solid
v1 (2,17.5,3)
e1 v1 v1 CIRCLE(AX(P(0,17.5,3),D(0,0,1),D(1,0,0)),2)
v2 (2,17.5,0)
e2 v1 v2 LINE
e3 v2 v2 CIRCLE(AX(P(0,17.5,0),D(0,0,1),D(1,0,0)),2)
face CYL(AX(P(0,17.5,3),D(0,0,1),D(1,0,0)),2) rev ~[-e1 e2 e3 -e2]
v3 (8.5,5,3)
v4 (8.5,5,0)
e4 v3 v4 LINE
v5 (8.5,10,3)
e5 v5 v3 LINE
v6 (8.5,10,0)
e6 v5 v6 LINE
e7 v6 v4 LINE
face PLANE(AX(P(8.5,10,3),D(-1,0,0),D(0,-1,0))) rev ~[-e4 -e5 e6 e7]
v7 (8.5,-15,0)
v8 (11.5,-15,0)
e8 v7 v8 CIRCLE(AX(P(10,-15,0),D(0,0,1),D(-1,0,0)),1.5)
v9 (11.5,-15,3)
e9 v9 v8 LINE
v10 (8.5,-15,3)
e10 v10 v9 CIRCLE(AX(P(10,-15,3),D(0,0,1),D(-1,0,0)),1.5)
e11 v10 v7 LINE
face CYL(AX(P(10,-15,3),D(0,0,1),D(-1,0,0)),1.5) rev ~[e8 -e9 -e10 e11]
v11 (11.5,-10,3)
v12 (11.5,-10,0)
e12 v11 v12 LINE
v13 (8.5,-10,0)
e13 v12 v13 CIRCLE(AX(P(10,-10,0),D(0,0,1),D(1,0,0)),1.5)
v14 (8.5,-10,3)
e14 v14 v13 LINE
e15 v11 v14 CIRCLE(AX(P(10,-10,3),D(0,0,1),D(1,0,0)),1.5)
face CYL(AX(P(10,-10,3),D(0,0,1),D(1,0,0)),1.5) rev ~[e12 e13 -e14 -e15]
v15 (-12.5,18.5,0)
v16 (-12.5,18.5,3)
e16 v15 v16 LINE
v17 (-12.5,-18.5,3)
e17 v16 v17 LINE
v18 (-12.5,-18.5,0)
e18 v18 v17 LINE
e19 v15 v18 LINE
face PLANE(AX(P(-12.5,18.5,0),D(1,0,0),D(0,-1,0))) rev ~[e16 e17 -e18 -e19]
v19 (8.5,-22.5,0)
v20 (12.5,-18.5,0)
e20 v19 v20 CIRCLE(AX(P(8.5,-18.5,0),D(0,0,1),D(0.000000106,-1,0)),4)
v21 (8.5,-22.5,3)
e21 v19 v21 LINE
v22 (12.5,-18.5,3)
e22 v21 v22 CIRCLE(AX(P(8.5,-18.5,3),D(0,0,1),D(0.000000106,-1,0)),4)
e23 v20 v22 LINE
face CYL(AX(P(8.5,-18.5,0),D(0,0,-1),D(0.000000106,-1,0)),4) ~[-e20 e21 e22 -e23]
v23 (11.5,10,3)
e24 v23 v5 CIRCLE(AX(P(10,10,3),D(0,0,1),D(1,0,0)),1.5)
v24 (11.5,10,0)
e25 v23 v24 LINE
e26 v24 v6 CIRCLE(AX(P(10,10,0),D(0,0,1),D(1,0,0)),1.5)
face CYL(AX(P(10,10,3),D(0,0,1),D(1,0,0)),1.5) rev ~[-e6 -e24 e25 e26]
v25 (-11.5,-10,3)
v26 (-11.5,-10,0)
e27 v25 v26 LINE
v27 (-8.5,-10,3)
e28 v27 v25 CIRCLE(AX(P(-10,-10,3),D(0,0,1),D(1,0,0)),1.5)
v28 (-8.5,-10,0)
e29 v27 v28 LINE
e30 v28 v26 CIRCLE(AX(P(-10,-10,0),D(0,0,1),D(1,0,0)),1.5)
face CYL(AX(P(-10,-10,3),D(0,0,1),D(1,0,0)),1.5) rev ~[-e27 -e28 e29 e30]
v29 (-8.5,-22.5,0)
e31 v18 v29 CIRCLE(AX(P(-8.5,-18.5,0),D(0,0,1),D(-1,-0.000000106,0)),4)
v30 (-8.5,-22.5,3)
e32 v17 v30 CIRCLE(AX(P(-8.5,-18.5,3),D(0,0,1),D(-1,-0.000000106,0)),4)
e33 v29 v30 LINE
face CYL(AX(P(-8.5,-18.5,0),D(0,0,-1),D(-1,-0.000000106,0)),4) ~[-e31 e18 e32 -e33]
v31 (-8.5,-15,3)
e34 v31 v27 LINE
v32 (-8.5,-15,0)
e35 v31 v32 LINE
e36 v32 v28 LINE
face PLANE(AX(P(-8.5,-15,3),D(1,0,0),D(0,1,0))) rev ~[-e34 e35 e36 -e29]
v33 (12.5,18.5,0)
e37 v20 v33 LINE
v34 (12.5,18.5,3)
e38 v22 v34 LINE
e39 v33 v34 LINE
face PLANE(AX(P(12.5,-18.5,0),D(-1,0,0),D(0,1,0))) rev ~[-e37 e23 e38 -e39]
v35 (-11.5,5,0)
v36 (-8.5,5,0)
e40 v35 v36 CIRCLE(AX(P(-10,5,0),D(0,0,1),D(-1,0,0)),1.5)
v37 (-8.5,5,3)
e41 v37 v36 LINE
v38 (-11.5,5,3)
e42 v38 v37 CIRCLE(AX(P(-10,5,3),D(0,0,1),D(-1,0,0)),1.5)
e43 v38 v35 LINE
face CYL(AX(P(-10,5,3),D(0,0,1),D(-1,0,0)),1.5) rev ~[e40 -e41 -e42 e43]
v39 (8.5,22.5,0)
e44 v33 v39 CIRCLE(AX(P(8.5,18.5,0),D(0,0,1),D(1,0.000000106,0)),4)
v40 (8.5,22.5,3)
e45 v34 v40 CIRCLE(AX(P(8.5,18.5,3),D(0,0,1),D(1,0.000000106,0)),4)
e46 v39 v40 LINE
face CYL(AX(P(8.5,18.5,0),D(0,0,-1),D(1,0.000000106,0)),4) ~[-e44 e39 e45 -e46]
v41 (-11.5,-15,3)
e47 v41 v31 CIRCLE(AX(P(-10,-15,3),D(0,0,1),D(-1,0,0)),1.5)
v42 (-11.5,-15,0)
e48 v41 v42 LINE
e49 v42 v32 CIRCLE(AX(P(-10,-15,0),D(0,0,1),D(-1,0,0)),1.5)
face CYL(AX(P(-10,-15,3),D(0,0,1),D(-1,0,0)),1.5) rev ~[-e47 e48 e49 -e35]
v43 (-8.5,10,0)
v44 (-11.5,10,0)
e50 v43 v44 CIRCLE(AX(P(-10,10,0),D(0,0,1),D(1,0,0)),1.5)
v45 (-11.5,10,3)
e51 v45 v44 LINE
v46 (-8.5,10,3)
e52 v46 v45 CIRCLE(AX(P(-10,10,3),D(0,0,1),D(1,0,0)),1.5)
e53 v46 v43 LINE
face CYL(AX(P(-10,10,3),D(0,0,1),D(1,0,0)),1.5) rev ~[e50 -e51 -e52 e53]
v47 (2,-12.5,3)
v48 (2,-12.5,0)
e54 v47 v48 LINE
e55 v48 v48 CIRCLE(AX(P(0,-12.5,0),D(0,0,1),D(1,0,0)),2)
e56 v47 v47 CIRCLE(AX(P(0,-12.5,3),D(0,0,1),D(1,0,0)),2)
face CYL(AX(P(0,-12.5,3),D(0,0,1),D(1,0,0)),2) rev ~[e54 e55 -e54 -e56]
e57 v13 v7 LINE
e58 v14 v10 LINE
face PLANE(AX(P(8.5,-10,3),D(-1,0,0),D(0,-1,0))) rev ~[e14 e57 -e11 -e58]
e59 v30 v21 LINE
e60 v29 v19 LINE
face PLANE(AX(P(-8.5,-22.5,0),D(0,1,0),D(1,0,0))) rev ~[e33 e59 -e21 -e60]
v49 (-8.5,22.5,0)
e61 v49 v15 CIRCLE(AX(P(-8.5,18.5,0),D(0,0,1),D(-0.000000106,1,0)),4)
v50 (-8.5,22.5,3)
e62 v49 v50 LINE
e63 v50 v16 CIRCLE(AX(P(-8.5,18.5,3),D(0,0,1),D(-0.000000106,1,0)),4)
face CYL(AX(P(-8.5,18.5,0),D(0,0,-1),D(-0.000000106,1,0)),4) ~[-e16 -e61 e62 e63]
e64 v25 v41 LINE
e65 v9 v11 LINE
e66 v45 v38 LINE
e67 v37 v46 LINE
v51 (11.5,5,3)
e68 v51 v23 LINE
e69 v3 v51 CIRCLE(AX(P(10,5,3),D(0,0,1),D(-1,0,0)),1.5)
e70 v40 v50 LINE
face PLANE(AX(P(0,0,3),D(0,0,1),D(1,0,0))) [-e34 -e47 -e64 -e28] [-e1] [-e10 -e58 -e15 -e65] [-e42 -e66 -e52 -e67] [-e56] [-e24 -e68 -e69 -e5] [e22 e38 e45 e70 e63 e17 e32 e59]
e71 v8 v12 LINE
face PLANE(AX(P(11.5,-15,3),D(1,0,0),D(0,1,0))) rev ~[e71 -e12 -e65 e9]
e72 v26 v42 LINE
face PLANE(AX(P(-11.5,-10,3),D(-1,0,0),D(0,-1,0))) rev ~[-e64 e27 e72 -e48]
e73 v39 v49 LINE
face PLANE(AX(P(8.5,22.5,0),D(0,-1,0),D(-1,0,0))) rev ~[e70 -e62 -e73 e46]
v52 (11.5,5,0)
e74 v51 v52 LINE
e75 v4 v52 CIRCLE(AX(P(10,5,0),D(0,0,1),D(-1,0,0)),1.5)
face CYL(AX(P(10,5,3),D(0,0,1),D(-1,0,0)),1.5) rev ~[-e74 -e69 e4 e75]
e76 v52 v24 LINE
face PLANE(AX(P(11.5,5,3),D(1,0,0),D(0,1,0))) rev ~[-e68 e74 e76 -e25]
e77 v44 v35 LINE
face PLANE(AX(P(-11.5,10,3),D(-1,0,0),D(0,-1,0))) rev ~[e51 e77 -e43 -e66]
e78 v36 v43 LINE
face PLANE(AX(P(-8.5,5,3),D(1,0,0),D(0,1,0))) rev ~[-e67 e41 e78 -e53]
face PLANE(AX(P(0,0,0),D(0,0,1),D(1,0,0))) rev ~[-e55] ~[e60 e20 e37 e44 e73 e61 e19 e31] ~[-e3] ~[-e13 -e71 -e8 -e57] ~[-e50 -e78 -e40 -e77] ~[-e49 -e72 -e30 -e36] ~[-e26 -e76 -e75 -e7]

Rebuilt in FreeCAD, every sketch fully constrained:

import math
import FreeCAD as App
import Part
import Sketcher
Q = App.Units.Quantity

doc = App.newDocument("Part")
body = doc.addObject("PartDesign::Body", "Body")

sketch1 = body.newObject("Sketcher::SketchObject", "Sketch")
sketch1.AttachmentSupport = (doc.getObject("XY_Plane"), [""])
sketch1.MapMode = "FlatFace"
sketch1.addGeometry([
    Part.LineSegment(App.Vector(-8.5, -22.5, 0), App.Vector(8.5, -22.5, 0)),
    Part.ArcOfCircle(Part.Circle(App.Vector(8.5, -18.5, 0), App.Vector(0, 0, 1), 4), math.radians(-90), math.radians(0)),
    Part.LineSegment(App.Vector(12.5, -18.5, 0), App.Vector(12.5, 18.5, 0)),
    Part.ArcOfCircle(Part.Circle(App.Vector(8.5, 18.5, 0), App.Vector(0, 0, 1), 4), math.radians(0), math.radians(90)),
    Part.LineSegment(App.Vector(8.5, 22.5, 0), App.Vector(-8.5, 22.5, 0)),
    Part.ArcOfCircle(Part.Circle(App.Vector(-8.5, 18.5, 0), App.Vector(0, 0, 1), 4), math.radians(90), math.radians(180)),
    Part.LineSegment(App.Vector(-12.5, 18.5, 0), App.Vector(-12.5, -18.5, 0)),
    Part.ArcOfCircle(Part.Circle(App.Vector(-8.5, -18.5, 0), App.Vector(0, 0, 1), 4), math.radians(-180), math.radians(-90)),
], False)
sketch1.addConstraint([
    Sketcher.Constraint("Tangent", 0, 2, 1, 1),
    Sketcher.Constraint("Tangent", 1, 2, 2, 1),
    Sketcher.Constraint("Tangent", 2, 2, 3, 1),
    Sketcher.Constraint("Tangent", 3, 2, 4, 1),
    Sketcher.Constraint("Tangent", 4, 2, 5, 1),
    Sketcher.Constraint("Tangent", 5, 2, 6, 1),
    Sketcher.Constraint("Tangent", 6, 2, 7, 1),
    Sketcher.Constraint("Tangent", 7, 2, 0, 1),
    Sketcher.Constraint("Horizontal", 0),
    Sketcher.Constraint("Vertical", 2),
    Sketcher.Constraint("Horizontal", 4),
    Sketcher.Constraint("Vertical", 6),
    Sketcher.Constraint("Equal", 1, 3),
    Sketcher.Constraint("Equal", 3, 5),
    Sketcher.Constraint("Equal", 5, 7),
    Sketcher.Constraint("Symmetric", 1, 3, 5, 3, -1, 1),
    Sketcher.Constraint("Radius", 1, Q("4 mm")),
    Sketcher.Constraint("DistanceX", 0, 1, 0, 2, Q("17 mm")),
    Sketcher.Constraint("DistanceY", 2, 1, 2, 2, Q("37 mm")),
])
pad1 = body.newObject("PartDesign::Pad", "Pad")
pad1.Profile = sketch1
pad1.Length = 3

sketch2 = body.newObject("Sketcher::SketchObject", "Sketch001")
sketch2.AttachmentSupport = (doc.getObject("XY_Plane"), [""])
sketch2.MapMode = "FlatFace"
sketch2.AttachmentOffset = App.Placement(App.Vector(0, 0, 3), App.Rotation())
sketch2.addGeometry([
    Part.Circle(App.Vector(0, -12.5, 0), App.Vector(0, 0, 1), 2),
    Part.Circle(App.Vector(0, 17.5, 0), App.Vector(0, 0, 1), 2),
    Part.ArcOfCircle(Part.Circle(App.Vector(-10, 10, 0), App.Vector(0, 0, 1), 1.5), math.radians(0), math.radians(180)),
    Part.LineSegment(App.Vector(-11.5, 10, 0), App.Vector(-11.5, 5, 0)),
    Part.ArcOfCircle(Part.Circle(App.Vector(-10, 5, 0), App.Vector(0, 0, 1), 1.5), math.radians(180), math.radians(360)),
    Part.LineSegment(App.Vector(-8.5, 5, 0), App.Vector(-8.5, 10, 0)),
    Part.ArcOfCircle(Part.Circle(App.Vector(10, 10, 0), App.Vector(0, 0, 1), 1.5), math.radians(0), math.radians(180)),
    Part.LineSegment(App.Vector(8.5, 10, 0), App.Vector(8.5, 5, 0)),
    Part.ArcOfCircle(Part.Circle(App.Vector(10, 5, 0), App.Vector(0, 0, 1), 1.5), math.radians(180), math.radians(360)),
    Part.LineSegment(App.Vector(11.5, 5, 0), App.Vector(11.5, 10, 0)),
    Part.ArcOfCircle(Part.Circle(App.Vector(10, -10, 0), App.Vector(0, 0, 1), 1.5), math.radians(0), math.radians(180)),
    Part.LineSegment(App.Vector(8.5, -10, 0), App.Vector(8.5, -15, 0)),
    Part.ArcOfCircle(Part.Circle(App.Vector(10, -15, 0), App.Vector(0, 0, 1), 1.5), math.radians(180), math.radians(360)),
    Part.LineSegment(App.Vector(11.5, -15, 0), App.Vector(11.5, -10, 0)),
    Part.ArcOfCircle(Part.Circle(App.Vector(-10, -10, 0), App.Vector(0, 0, 1), 1.5), math.radians(0), math.radians(180)),
    Part.LineSegment(App.Vector(-11.5, -10, 0), App.Vector(-11.5, -15, 0)),
    Part.ArcOfCircle(Part.Circle(App.Vector(-10, -15, 0), App.Vector(0, 0, 1), 1.5), math.radians(180), math.radians(360)),
    Part.LineSegment(App.Vector(-8.5, -15, 0), App.Vector(-8.5, -10, 0)),
], False)
sketch2.addConstraint([
    Sketcher.Constraint("Tangent", 2, 2, 3, 1),
    Sketcher.Constraint("Tangent", 3, 2, 4, 1),
    Sketcher.Constraint("Tangent", 4, 2, 5, 1),
    Sketcher.Constraint("Tangent", 5, 2, 2, 1),
    Sketcher.Constraint("Tangent", 6, 2, 7, 1),
    Sketcher.Constraint("Tangent", 7, 2, 8, 1),
    Sketcher.Constraint("Tangent", 8, 2, 9, 1),
    Sketcher.Constraint("Tangent", 9, 2, 6, 1),
    Sketcher.Constraint("Tangent", 10, 2, 11, 1),
    Sketcher.Constraint("Tangent", 11, 2, 12, 1),
    Sketcher.Constraint("Tangent", 12, 2, 13, 1),
    Sketcher.Constraint("Tangent", 13, 2, 10, 1),
    Sketcher.Constraint("Tangent", 14, 2, 15, 1),
    Sketcher.Constraint("Tangent", 15, 2, 16, 1),
    Sketcher.Constraint("Tangent", 16, 2, 17, 1),
    Sketcher.Constraint("Tangent", 17, 2, 14, 1),
    Sketcher.Constraint("Vertical", 3),
    Sketcher.Constraint("Vertical", 5),
    Sketcher.Constraint("Vertical", 7),
    Sketcher.Constraint("Vertical", 9),
    Sketcher.Constraint("Vertical", 11),
    Sketcher.Constraint("Vertical", 13),
    Sketcher.Constraint("Vertical", 15),
    Sketcher.Constraint("Vertical", 17),
    Sketcher.Constraint("Equal", 0, 1),
    Sketcher.Constraint("Equal", 4, 6),
    Sketcher.Constraint("Equal", 8, 10),
    Sketcher.Constraint("Equal", 12, 14),
    Sketcher.Constraint("Symmetric", 2, 3, 10, 3, -1, 1),
    Sketcher.Constraint("Symmetric", 6, 3, 14, 3, -1, 1),
    Sketcher.Constraint("Symmetric", 2, 3, 6, 3, -2),
    Sketcher.Constraint("PointOnObject", 0, 3, -2),
    Sketcher.Constraint("PointOnObject", 1, 3, -2),
    Sketcher.Constraint("Horizontal", 4, 3, 8, 3),
    Sketcher.Constraint("Horizontal", 12, 3, 16, 3),
    Sketcher.Constraint("Equal", 9, 11),
    Sketcher.Constraint("Diameter", 0, Q("4 mm")),
    Sketcher.Constraint("Radius", 2, Q("1.5 mm")),
    Sketcher.Constraint("DistanceY", 3, 2, 3, 1, Q("5 mm")),
    Sketcher.Constraint("DistanceX", 2, 3, -1, 1, Q("10 mm")),
    Sketcher.Constraint("DistanceY", -1, 1, 2, 3, Q("10 mm")),
    Sketcher.Constraint("DistanceY", 0, 3, 1, 3, Q("30 mm")),
    Sketcher.Constraint("DistanceY", 0, 3, -1, 1, Q("12.5 mm")),
])
pocket1 = body.newObject("PartDesign::Pocket", "Pocket")
pocket1.Profile = sketch2
pocket1.Type = "ThroughAll"

doc.recompute()
